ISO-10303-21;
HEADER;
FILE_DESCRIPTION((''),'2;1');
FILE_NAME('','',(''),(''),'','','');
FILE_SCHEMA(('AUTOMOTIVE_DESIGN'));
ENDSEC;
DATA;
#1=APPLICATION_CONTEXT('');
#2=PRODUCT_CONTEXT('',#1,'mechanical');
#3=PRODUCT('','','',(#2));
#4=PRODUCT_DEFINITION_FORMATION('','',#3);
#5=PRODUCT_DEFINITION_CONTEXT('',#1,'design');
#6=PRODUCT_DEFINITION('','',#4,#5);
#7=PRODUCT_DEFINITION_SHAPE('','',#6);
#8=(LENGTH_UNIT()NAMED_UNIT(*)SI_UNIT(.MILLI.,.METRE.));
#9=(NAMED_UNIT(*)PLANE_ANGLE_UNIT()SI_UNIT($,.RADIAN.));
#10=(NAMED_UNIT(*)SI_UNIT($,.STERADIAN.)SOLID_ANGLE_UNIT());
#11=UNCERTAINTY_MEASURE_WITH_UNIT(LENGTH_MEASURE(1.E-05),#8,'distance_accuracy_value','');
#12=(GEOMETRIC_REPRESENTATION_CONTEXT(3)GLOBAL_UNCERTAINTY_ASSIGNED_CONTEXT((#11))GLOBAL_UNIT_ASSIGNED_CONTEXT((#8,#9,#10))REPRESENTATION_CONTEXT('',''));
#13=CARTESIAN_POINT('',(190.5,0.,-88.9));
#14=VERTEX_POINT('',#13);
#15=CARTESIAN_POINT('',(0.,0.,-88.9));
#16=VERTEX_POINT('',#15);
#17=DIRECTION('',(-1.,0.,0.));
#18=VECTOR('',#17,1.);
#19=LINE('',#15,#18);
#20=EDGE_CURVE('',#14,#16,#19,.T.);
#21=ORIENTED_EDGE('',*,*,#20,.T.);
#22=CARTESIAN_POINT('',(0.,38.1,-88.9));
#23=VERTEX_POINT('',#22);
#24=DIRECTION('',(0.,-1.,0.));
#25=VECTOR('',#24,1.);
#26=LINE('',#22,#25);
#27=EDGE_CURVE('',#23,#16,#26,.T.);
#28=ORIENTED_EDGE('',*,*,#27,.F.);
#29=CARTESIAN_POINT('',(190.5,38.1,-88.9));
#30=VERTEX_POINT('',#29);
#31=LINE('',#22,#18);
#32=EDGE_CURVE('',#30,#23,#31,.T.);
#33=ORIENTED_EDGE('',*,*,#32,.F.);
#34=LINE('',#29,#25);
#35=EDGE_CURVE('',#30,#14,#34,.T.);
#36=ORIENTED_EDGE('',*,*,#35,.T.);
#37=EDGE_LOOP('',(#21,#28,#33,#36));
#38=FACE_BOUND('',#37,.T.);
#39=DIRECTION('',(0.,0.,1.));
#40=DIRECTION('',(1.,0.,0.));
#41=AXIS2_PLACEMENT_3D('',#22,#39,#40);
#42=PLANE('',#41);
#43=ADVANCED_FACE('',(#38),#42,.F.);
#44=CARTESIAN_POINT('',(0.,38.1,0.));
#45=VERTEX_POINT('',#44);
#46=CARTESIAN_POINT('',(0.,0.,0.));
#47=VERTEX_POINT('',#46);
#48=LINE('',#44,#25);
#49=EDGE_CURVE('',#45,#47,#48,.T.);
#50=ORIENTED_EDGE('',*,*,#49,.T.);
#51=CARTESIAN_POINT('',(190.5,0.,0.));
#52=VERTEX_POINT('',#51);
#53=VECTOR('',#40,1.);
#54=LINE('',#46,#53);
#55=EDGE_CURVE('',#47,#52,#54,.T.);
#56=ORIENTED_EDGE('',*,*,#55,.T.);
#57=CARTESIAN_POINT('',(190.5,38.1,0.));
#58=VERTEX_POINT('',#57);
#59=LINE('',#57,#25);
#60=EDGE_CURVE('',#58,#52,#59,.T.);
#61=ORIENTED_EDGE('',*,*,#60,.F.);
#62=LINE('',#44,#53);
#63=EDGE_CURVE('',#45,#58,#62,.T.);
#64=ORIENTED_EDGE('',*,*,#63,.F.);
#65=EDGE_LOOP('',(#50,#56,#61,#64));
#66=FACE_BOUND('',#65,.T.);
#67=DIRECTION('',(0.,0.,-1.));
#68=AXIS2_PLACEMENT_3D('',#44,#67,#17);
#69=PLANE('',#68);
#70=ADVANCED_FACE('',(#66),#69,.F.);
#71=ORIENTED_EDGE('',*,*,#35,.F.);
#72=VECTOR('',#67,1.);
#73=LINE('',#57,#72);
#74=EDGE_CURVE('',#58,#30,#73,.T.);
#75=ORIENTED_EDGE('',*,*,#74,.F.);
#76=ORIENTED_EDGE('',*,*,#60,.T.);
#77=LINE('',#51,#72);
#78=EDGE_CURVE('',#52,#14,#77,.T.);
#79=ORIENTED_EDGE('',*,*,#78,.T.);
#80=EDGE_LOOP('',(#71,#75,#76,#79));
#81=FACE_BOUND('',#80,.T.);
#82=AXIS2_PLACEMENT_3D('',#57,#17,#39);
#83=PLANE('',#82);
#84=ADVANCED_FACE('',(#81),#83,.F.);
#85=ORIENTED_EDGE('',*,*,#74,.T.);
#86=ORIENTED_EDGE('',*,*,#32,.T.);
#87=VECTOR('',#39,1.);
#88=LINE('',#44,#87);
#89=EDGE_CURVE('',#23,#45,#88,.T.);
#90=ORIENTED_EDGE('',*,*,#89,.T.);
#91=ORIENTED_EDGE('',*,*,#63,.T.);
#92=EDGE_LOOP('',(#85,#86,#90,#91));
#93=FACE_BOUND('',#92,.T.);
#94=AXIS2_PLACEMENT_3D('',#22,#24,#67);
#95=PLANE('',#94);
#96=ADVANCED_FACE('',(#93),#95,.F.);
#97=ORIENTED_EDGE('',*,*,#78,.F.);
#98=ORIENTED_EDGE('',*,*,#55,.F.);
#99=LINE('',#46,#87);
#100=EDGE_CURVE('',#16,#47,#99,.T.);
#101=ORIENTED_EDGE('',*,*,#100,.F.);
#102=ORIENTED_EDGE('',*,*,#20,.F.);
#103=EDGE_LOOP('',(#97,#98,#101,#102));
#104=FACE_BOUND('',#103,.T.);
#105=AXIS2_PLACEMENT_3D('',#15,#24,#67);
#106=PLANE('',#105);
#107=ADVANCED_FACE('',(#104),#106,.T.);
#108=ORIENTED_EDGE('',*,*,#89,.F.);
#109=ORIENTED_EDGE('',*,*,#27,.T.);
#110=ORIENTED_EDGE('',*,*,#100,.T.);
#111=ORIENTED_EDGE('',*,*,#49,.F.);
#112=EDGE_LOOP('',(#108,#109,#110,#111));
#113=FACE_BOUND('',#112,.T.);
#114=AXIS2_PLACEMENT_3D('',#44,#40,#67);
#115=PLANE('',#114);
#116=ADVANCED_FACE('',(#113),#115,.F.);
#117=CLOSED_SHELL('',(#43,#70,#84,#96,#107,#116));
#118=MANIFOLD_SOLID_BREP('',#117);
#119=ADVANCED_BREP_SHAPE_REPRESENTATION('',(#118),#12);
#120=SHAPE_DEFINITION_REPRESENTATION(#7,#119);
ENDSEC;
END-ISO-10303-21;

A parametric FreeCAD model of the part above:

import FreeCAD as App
import Part
import Sketcher
Q = App.Units.Quantity


def add_polygon(sketch, points):
    """Adds a closed chain of lines whose ends are joined by coincident constraints."""
    first, n = sketch.GeometryCount, len(points)
    for a, b in zip(points, points[1:] + points[:1]):
        sketch.addGeometry(Part.LineSegment(App.Vector(*a, 0), App.Vector(*b, 0)), False)
    for i in range(n):
        sketch.addConstraint(Sketcher.Constraint("Coincident", first + i, 2, first + (i + 1) % n, 1))

doc = App.newDocument("Part")
body = doc.addObject("PartDesign::Body", "Body")

# Sketch on XZ plane
sketch1 = doc.addObject("Sketcher::SketchObject", "Sketch")
body.addObject(sketch1)
sketch1.AttachmentSupport = (doc.XZ_Plane, [""])
sketch1.MapMode = "FlatFace"
add_polygon(sketch1, [(0, -89), (0, 0), (190, 0), (190, -89)])  # lines 0-3
sketch1.addConstraint([
    Sketcher.Constraint("Vertical", 0),
    Sketcher.Constraint("Horizontal", 1),
    Sketcher.Constraint("Vertical", 2),
    Sketcher.Constraint("Horizontal", 3),
    Sketcher.Constraint("Coincident", 0, 2, -1, 1),
    Sketcher.Constraint("DistanceX", 1, 1, 1, 2, Q("7.5 in")),
    Sketcher.Constraint("DistanceY", 0, 1, 0, 2, Q("3.5 in")),
])
pad1 = doc.addObject("PartDesign::Pad", "Pad")
body.addObject(pad1)
pad1.Profile = sketch1
pad1.Length = Q("1.5 in")
pad1.Reversed = True

doc.recompute()
